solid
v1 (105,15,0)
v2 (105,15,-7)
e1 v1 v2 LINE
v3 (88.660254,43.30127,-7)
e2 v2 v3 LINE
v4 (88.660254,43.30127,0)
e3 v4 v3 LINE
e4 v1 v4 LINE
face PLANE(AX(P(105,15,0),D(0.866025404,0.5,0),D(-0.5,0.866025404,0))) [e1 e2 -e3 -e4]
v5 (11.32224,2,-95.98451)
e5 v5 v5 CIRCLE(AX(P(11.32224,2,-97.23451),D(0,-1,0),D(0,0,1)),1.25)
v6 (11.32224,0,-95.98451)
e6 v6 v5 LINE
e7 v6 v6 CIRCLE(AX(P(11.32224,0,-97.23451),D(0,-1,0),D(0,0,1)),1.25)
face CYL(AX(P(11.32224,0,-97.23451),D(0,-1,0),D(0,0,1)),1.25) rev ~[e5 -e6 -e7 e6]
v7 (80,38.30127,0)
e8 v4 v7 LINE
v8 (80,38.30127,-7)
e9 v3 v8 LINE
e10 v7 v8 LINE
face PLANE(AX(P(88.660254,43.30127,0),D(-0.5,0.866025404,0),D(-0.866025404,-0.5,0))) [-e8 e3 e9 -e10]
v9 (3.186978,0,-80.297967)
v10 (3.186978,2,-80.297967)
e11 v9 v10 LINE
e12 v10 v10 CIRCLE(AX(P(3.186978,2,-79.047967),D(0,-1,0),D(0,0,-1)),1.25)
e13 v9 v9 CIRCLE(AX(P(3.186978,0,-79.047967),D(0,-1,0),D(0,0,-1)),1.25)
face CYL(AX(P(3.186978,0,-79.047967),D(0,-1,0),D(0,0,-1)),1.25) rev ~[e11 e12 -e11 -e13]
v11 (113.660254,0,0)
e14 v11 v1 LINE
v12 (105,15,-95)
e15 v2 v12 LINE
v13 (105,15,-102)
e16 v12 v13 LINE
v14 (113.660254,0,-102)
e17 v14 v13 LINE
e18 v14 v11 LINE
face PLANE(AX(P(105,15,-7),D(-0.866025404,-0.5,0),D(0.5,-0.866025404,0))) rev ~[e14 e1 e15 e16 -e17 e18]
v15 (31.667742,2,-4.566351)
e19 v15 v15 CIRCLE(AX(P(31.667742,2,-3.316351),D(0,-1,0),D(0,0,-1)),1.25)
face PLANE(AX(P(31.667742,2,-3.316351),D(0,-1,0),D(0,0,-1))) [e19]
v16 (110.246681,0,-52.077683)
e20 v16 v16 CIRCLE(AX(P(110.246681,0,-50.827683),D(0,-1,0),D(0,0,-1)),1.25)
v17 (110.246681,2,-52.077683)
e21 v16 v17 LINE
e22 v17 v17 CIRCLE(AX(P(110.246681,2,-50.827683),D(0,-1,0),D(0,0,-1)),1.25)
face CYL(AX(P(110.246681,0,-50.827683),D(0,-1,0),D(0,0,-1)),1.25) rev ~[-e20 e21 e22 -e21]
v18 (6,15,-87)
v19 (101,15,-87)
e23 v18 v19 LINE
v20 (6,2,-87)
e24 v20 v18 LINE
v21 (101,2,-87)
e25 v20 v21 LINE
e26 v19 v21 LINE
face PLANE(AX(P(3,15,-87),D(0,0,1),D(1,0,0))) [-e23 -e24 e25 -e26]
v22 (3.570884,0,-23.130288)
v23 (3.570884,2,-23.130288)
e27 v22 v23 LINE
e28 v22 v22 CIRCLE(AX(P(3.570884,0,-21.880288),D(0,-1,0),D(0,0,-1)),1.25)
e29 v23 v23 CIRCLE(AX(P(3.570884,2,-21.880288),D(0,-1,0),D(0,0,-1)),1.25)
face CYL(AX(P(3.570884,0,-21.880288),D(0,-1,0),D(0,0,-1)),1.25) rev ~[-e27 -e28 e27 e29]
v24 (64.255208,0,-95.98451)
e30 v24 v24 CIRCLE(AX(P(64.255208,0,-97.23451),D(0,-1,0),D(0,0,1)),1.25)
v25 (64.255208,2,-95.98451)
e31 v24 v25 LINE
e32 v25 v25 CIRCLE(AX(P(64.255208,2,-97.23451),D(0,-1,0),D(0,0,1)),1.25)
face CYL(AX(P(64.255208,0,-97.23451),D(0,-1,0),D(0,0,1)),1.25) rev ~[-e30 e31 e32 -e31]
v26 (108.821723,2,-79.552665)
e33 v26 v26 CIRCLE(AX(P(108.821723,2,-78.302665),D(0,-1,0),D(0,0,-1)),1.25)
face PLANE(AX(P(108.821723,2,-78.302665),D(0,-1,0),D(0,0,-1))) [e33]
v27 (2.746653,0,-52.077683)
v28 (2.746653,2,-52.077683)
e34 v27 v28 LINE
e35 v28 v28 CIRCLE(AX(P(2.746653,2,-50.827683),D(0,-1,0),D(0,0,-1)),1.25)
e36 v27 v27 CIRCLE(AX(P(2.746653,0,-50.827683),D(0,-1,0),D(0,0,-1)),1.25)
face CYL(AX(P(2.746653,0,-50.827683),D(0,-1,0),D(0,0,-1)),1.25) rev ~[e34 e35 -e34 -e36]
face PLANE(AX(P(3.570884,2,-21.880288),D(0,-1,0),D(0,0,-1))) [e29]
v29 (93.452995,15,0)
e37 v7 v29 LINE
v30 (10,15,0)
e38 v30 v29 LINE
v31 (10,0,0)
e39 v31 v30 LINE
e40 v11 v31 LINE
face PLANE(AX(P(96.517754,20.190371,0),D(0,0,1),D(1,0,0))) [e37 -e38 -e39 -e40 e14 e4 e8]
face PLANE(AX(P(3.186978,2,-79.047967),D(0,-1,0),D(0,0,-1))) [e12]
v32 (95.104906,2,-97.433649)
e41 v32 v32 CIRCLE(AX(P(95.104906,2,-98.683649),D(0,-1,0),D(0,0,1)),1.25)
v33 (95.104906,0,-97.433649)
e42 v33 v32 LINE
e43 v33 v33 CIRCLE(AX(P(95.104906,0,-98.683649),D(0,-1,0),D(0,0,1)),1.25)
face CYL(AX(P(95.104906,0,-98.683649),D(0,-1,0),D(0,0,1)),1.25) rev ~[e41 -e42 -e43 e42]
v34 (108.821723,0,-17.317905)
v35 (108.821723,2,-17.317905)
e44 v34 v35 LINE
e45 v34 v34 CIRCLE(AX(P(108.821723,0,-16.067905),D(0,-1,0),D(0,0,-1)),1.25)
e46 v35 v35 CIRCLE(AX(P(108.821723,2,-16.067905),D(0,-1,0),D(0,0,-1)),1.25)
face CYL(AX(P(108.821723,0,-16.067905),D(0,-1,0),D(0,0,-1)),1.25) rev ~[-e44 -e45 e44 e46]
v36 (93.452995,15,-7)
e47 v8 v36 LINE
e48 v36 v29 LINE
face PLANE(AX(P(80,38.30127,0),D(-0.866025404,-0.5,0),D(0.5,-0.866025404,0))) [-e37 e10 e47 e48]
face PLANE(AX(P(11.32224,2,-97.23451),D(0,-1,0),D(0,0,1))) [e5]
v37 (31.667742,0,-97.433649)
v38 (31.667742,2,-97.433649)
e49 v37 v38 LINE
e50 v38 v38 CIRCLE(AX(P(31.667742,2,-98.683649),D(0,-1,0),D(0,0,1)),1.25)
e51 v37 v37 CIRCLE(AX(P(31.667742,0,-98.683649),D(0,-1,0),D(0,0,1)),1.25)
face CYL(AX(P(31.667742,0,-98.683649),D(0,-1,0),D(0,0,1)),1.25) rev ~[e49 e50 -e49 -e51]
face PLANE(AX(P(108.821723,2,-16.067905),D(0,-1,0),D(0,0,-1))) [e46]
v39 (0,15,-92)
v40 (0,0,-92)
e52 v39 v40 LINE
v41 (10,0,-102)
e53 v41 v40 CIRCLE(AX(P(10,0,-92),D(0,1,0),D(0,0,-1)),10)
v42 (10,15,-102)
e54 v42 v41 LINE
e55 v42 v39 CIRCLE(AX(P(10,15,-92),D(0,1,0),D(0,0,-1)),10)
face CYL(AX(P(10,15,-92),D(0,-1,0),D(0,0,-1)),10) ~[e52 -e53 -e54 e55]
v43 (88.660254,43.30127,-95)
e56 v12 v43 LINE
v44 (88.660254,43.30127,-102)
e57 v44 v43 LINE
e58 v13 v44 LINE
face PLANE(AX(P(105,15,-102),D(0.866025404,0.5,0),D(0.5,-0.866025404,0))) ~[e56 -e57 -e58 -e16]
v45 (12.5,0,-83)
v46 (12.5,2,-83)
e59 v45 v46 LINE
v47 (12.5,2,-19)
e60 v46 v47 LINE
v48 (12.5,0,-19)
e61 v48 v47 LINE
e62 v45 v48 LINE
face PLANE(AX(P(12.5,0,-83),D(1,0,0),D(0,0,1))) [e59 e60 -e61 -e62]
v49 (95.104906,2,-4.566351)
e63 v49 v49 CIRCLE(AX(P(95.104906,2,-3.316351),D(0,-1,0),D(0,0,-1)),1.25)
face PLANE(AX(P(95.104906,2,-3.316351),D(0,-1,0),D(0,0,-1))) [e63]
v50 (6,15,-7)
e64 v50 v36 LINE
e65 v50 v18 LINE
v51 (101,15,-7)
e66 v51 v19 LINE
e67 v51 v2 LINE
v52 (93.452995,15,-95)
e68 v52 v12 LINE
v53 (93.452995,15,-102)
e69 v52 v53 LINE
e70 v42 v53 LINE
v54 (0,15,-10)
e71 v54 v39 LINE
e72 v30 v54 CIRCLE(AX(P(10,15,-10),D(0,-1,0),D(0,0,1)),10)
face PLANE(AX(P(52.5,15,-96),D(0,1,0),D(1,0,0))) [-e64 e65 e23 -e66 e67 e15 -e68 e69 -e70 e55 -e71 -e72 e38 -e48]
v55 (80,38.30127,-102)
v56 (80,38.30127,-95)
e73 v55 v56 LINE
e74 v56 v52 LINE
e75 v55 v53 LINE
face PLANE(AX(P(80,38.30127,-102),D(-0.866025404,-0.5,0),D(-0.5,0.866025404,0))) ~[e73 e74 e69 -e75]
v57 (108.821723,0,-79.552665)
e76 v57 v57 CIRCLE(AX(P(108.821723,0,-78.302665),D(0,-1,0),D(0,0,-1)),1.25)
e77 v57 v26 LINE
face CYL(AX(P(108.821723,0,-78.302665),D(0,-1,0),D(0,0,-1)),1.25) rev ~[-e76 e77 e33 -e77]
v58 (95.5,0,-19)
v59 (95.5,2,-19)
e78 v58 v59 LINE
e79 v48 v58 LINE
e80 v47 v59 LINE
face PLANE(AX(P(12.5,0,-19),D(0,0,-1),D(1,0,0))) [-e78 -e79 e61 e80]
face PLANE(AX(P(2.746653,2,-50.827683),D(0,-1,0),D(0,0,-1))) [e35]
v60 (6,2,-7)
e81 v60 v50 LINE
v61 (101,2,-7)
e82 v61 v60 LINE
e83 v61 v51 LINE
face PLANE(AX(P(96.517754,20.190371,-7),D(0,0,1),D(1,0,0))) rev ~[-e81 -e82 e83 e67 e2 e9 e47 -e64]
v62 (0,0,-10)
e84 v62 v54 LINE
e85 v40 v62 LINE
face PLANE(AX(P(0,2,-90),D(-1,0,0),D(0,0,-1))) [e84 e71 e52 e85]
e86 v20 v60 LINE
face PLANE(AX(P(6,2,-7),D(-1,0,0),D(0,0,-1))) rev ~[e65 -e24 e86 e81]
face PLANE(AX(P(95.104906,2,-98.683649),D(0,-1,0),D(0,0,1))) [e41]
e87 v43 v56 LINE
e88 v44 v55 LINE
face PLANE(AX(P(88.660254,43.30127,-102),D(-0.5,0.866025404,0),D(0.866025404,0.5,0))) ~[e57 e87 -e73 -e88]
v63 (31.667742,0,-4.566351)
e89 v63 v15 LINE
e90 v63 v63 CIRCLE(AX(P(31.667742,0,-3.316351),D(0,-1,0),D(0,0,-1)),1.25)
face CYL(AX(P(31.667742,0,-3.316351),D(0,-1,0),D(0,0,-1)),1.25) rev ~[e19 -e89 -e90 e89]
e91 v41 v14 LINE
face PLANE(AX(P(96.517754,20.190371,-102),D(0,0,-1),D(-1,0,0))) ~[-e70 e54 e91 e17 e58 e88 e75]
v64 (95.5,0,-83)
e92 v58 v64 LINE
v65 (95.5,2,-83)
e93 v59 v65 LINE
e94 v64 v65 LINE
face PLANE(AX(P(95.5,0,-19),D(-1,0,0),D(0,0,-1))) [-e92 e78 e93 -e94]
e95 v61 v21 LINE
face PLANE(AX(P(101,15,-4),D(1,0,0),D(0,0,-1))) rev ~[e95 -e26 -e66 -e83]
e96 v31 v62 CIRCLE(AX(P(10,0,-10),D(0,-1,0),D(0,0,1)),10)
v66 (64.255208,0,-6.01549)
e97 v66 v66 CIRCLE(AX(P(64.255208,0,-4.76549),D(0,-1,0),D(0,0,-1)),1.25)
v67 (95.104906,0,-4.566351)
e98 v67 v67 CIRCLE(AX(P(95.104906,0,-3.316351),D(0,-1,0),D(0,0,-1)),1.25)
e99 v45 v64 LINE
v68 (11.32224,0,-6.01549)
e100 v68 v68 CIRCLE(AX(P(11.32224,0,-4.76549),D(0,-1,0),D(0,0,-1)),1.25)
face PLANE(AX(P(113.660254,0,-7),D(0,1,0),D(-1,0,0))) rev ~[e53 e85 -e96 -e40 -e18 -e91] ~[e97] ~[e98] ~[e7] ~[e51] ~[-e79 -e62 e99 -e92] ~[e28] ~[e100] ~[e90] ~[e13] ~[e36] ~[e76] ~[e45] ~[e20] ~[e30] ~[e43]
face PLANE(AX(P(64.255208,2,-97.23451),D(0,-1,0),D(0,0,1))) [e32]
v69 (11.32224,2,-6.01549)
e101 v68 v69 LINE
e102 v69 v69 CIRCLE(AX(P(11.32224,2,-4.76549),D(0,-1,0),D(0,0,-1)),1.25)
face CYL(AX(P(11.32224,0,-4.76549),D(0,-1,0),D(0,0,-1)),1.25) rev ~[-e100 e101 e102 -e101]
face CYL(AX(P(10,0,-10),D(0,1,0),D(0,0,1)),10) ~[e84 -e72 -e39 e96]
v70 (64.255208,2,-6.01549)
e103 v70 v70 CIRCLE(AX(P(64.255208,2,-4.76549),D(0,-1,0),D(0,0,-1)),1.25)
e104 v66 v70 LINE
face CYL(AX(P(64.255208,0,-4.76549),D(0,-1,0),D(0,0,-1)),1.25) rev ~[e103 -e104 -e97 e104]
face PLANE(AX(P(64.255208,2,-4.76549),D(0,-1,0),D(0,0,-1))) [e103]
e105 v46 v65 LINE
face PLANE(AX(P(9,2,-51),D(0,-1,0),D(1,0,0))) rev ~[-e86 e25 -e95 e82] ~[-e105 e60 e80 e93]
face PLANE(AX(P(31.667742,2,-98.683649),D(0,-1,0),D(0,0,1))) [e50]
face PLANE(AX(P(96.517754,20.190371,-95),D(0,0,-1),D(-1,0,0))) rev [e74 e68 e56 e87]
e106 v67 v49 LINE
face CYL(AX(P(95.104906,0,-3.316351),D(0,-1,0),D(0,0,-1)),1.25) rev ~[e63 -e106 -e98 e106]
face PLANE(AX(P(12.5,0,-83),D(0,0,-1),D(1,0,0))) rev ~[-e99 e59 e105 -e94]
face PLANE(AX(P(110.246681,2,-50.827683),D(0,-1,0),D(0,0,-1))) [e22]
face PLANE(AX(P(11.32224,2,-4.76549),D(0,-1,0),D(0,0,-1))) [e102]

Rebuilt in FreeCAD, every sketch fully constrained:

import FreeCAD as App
import Part
import Sketcher

V = App.Vector
Q = App.Units.Quantity


def edges_at(feature, points):
    """Names of the edges that pass closest to the given points."""
    edges = feature.Shape.Edges
    near = lambda p: min(range(len(edges)), key=lambda i: edges[i].distToShape(Part.Vertex(*p))[0])
    return sorted({f"Edge{near(p) + 1}" for p in points})


def add_polygon(sketch, points):
    """Adds a closed chain of lines whose ends are joined by coincident constraints."""
    first, n = sketch.GeometryCount, len(points)
    for a, b in zip(points, points[1:] + points[:1]):
        sketch.addGeometry(Part.LineSegment(App.Vector(*a, 0), App.Vector(*b, 0)), False)
    for i in range(n):
        sketch.addConstraint(Sketcher.Constraint("Coincident", first + i, 2, first + (i + 1) % n, 1))

doc = App.newDocument("Part")
body = doc.addObject("PartDesign::Body", "Body")

sketch1 = body.newObject("Sketcher::SketchObject", "Sketch")
sketch1.AttachmentSupport = (doc.getObject("XZ_Plane"), [""])
sketch1.MapMode = "FlatFace"
add_polygon(sketch1, [(0, -90), (0, 0), (105, 0), (105, -90)])
sketch1.addConstraint([
    Sketcher.Constraint("Vertical", 0),
    Sketcher.Constraint("Horizontal", 1),
    Sketcher.Constraint("Vertical", 2),
    Sketcher.Constraint("Horizontal", 3),
    Sketcher.Constraint("Coincident", 0, 2, -1, 1),
    Sketcher.Constraint("DistanceX", 1, 1, 1, 2, 105.0),
    Sketcher.Constraint("DistanceY", 0, 1, 0, 2, 90.0),
])
pad1 = body.newObject("PartDesign::Pad", "Pad")
pad1.Profile = sketch1
pad1.Length = 15
pad1.Reversed = True

sketch2 = body.newObject("Sketcher::SketchObject", "Sketch001")
sketch2.AttachmentSupport = (doc.getObject("XZ_Plane"), [""])
sketch2.MapMode = "FlatFace"
sketch2.AttachmentOffset = App.Placement(V(0, 0, -15), App.Rotation())
add_polygon(sketch2, [(3, -87), (3, -4), (101, -4), (101, -87)])
sketch2.addConstraint([
    Sketcher.Constraint("Vertical", 0),
    Sketcher.Constraint("Horizontal", 1),
    Sketcher.Constraint("Vertical", 2),
    Sketcher.Constraint("Horizontal", 3),
    Sketcher.Constraint("DistanceX", 1, 1, 1, 2, 98.0),
    Sketcher.Constraint("DistanceY", 0, 1, 0, 2, 83.0),
    Sketcher.Constraint("DistanceX", -1, 1, 0, 2, 3.0),
    Sketcher.Constraint("DistanceY", 0, 2, -1, 1, 4.0),
])
pocket1 = body.newObject("PartDesign::Pocket", "Pocket")
pocket1.Profile = sketch2
pocket1.Length = 13
pocket1.Reversed = True

sketch3 = body.newObject("Sketcher::SketchObject", "Sketch002")
sketch3.AttachmentSupport = (doc.getObject("XZ_Plane"), [""])
sketch3.MapMode = "FlatFace"
sketch3.AttachmentOffset = App.Placement(V(0, 0, -2), App.Rotation())
add_polygon(sketch3, [(6, -84), (6, -18), (98, -18), (98, -84)])
sketch3.addConstraint([
    Sketcher.Constraint("Vertical", 0),
    Sketcher.Constraint("Horizontal", 1),
    Sketcher.Constraint("Vertical", 2),
    Sketcher.Constraint("Horizontal", 3),
    Sketcher.Constraint("DistanceX", 1, 1, 1, 2, 93.0),
    Sketcher.Constraint("DistanceY", 0, 1, 0, 2, 66.0),
    Sketcher.Constraint("DistanceY", 0, 2, -1, 1, 18.0),
    Sketcher.Constraint("DistanceX", -1, 1, 0, 2, 5.5),
])
pocket2 = body.newObject("PartDesign::Pocket", "Pocket001")
pocket2.Profile = sketch3
pocket2.Length = 13
pocket2.Reversed = True

sketch4 = body.newObject("Sketcher::SketchObject", "Sketch003")
sketch4.AttachmentSupport = (doc.getObject("XZ_Plane"), [""])
sketch4.MapMode = "FlatFace"
add_polygon(sketch4, [(6, -18), (6, -84), (98, -84), (98, -18)])
add_polygon(sketch4, [(96, -19), (96, -83), (12, -83), (12, -19)])
sketch4.addConstraint([
    Sketcher.Constraint("Vertical", 0),
    Sketcher.Constraint("Horizontal", 1),
    Sketcher.Constraint("Vertical", 2),
    Sketcher.Constraint("Horizontal", 3),
    Sketcher.Constraint("Vertical", 4),
    Sketcher.Constraint("Horizontal", 5),
    Sketcher.Constraint("Vertical", 6),
    Sketcher.Constraint("Horizontal", 7),
    Sketcher.Constraint("DistanceX", 1, 1, 1, 2, 93.0),
    Sketcher.Constraint("DistanceX", 5, 2, 5, 1, 83.0),
    Sketcher.Constraint("DistanceY", 0, 2, 0, 1, 66.0),
    Sketcher.Constraint("DistanceY", 4, 2, 4, 1, 64.0),
    Sketcher.Constraint("DistanceY", 0, 2, -1, 1, 84.0),
    Sketcher.Constraint("DistanceY", 4, 2, -1, 1, 83.0),
    Sketcher.Constraint("DistanceX", 4, 2, 1, 2, 3.0),
    Sketcher.Constraint("DistanceX", -1, 1, 0, 2, 5.5),
])
pad2 = body.newObject("PartDesign::Pad", "Pad001")
pad2.Profile = sketch4
pad2.Length = 2
pad2.Reversed = True

sketch5 = body.newObject("Sketcher::SketchObject", "Sketch004")
sketch5.AttachmentSupport = (doc.getObject("XZ_Plane"), [""])
sketch5.MapMode = "FlatFace"
sketch5.AttachmentOffset = App.Placement(V(0, 0, -2), App.Rotation())
add_polygon(sketch5, [(3, -87), (3, -4), (101, -4), (101, -7), (6, -7), (6, -87)])
sketch5.addConstraint([
    Sketcher.Constraint("Vertical", 0),
    Sketcher.Constraint("Horizontal", 1),
    Sketcher.Constraint("Vertical", 2),
    Sketcher.Constraint("Horizontal", 3),
    Sketcher.Constraint("Vertical", 4),
    Sketcher.Constraint("Horizontal", 5),
    Sketcher.Constraint("Equal", 5, 2),
    Sketcher.Constraint("DistanceX", 1, 1, 1, 2, 98.0),
    Sketcher.Constraint("DistanceX", 3, 2, 3, 1, 95.0),
    Sketcher.Constraint("DistanceY", 0, 1, 0, 2, 83.0),
    Sketcher.Constraint("DistanceX", -1, 1, 0, 2, 3.0),
    Sketcher.Constraint("DistanceY", 0, 2, -1, 1, 4.0),
])
pad3 = body.newObject("PartDesign::Pad", "Pad002")
pad3.Profile = sketch5
pad3.Length = 13
pad3.Reversed = True

sketch6 = body.newObject("Sketcher::SketchObject", "Sketch005")
sketch6.AttachmentSupport = (doc.getObject("XZ_Plane"), [""])
sketch6.MapMode = "FlatFace"
add_polygon(sketch6, [(0, -83), (0, -102), (105, -102), (105, -83)])
sketch6.addConstraint([
    Sketcher.Constraint("Vertical", 0),
    Sketcher.Constraint("Horizontal", 1),
    Sketcher.Constraint("Vertical", 2),
    Sketcher.Constraint("Horizontal", 3),
    Sketcher.Constraint("PointOnObject", 0, 2, -2),
    Sketcher.Constraint("DistanceX", 1, 1, 1, 2, 105.0),
    Sketcher.Constraint("DistanceY", 0, 2, 0, 1, 19.0),
    Sketcher.Constraint("DistanceY", 0, 2, -1, 1, 102.0),
])
pad4 = body.newObject("PartDesign::Pad", "Pad003")
pad4.Profile = sketch6
pad4.Length = 2
pad4.Reversed = True

sketch7 = body.newObject("Sketcher::SketchObject", "Sketch006")
sketch7.AttachmentSupport = (doc.getObject("XZ_Plane"), [""])
sketch7.MapMode = "FlatFace"
sketch7.AttachmentOffset = App.Placement(V(0, 0, -2), App.Rotation())
add_polygon(sketch7, [(0, -102), (0, -90), (105, -90), (105, -102)])
sketch7.addConstraint([
    Sketcher.Constraint("Vertical", 0),
    Sketcher.Constraint("Horizontal", 1),
    Sketcher.Constraint("Vertical", 2),
    Sketcher.Constraint("Horizontal", 3),
    Sketcher.Constraint("PointOnObject", 0, 2, -2),
    Sketcher.Constraint("DistanceX", 1, 1, 1, 2, 105.0),
    Sketcher.Constraint("DistanceY", 0, 1, 0, 2, 12.0),
    Sketcher.Constraint("DistanceY", 0, 2, -1, 1, 90.0),
])
pad5 = body.newObject("PartDesign::Pad", "Pad004")
pad5.Profile = sketch7
pad5.Length = 13
pad5.Reversed = True

sketch8 = body.newObject("Sketcher::SketchObject", "Sketch007")
sketch8.AttachmentSupport = (doc.getObject("XY_Plane"), [""])
sketch8.MapMode = "FlatFace"
add_polygon(sketch8, [(114, 0), (105, 15), (89, 43), (80, 38), (102, 0)])
sketch8.addConstraint([
    Sketcher.Constraint("Horizontal", 4),
    Sketcher.Constraint("PointOnObject", 3, 2, -1),
    Sketcher.Constraint("Parallel", 0, 1),
    Sketcher.Constraint("Perpendicular", 1, 2),
    Sketcher.Constraint("Perpendicular", 2, 3),
    Sketcher.Constraint("Angle", 0, Q("120 deg")),
    Sketcher.Constraint("Distance", 2, 10.0),
    Sketcher.Constraint("DistanceX", -1, 1, 0, 2, 105.0),
    Sketcher.Constraint("DistanceY", -1, 1, 0, 2, 15.0),
    Sketcher.Constraint("DistanceX", -1, 1, 2, 2, 80.0),
])
pad6 = body.newObject("PartDesign::Pad", "Pad005")
pad6.Profile = sketch8
pad6.Length = 7
pad6.Reversed = True
doc.recompute()

datumplane = body.newObject("PartDesign::Plane", "DatumPlane")
datumplane.AttachmentSupport = (doc.getObject("XY_Plane"), [""])
datumplane.MapMode = "FlatFace"
datumplane.AttachmentOffset = App.Placement(V(0, 0, -51), App.Rotation())
mirrored = body.newObject("PartDesign::Mirrored", "Mirrored")
mirrored.Originals = [pad6]
mirrored.MirrorPlane = (datumplane, [""])
body.Tip = mirrored

sketch9 = body.newObject("Sketcher::SketchObject", "Sketch008")
sketch9.AttachmentSupport = (doc.getObject("XY_Plane"), [""])
sketch9.MapMode = "FlatFace"
sketch9.AttachmentOffset = App.Placement(V(0, 0, -7), App.Rotation())
add_polygon(sketch9, [(114, 0), (105, 0), (105, 15)])
sketch9.addConstraint([
    Sketcher.Constraint("Horizontal", 0),
    Sketcher.Constraint("Vertical", 1),
    Sketcher.Constraint("PointOnObject", 0, 2, -1),
    Sketcher.Constraint("DistanceY", 1, 1, 1, 2, 15.0),
    Sketcher.Constraint("Angle", 2, Q("-60 deg")),
    Sketcher.Constraint("DistanceX", -1, 1, 0, 2, 105.0),
])
pad7 = body.newObject("PartDesign::Pad", "Pad006")
pad7.Profile = sketch9
pad7.Length = 88
pad7.Reversed = True

sketch10 = body.newObject("Sketcher::SketchObject", "Sketch009")
sketch10.AttachmentSupport = (doc.getObject("XZ_Plane"), [""])
sketch10.MapMode = "FlatFace"
sketch10.addGeometry([
    Part.Circle(V(11.3, -4.8, 0), V(0, 0, 1), 1.2),
    Part.Circle(V(31.7, -3.3, 0), V(0, 0, 1), 1.2),
    Part.Circle(V(64.3, -4.8, 0), V(0, 0, 1), 1.2),
    Part.Circle(V(95.1, -3.3, 0), V(0, 0, 1), 1.2),
    Part.Circle(V(95.1, -98.7, 0), V(0, 0, 1), 1.2),
    Part.Circle(V(64.3, -97.2, 0), V(0, 0, 1), 1.2),
    Part.Circle(V(31.7, -98.7, 0), V(0, 0, 1), 1.2),
    Part.Circle(V(11.3, -97.2, 0), V(0, 0, 1), 1.2),
    Part.Circle(V(108.8, -16.1, 0), V(0, 0, 1), 1.2),
    Part.Circle(V(108.8, -78.3, 0), V(0, 0, 1), 1.2),
    Part.Circle(V(110.2, -50.8, 0), V(0, 0, 1), 1.2),
    Part.Circle(V(2.7, -50.8, 0), V(0, 0, 1), 1.2),
    Part.Circle(V(3.6, -21.9, 0), V(0, 0, 1), 1.2),
    Part.Circle(V(3.2, -79, 0), V(0, 0, 1), 1.2),
], False)
sketch10.addConstraint([
    Sketcher.Constraint("Equal", 0, 1),
    Sketcher.Constraint("Equal", 1, 2),
    Sketcher.Constraint("Equal", 2, 3),
    Sketcher.Constraint("Equal", 3, 4),
    Sketcher.Constraint("Equal", 4, 5),
    Sketcher.Constraint("Equal", 5, 6),
    Sketcher.Constraint("Equal", 6, 7),
    Sketcher.Constraint("Equal", 7, 8),
    Sketcher.Constraint("Equal", 8, 9),
    Sketcher.Constraint("Equal", 9, 10),
    Sketcher.Constraint("Equal", 10, 11),
    Sketcher.Constraint("Equal", 11, 12),
    Sketcher.Constraint("Equal", 12, 13),
    Sketcher.Constraint("Horizontal", 0, 3, 2, 3),
    Sketcher.Constraint("Horizontal", 1, 3, 3, 3),
    Sketcher.Constraint("Horizontal", 4, 3, 6, 3),
    Sketcher.Constraint("Horizontal", 5, 3, 7, 3),
    Sketcher.Constraint("Horizontal", 10, 3, 11, 3),
    Sketcher.Constraint("Vertical", 3, 3, 4, 3),
    Sketcher.Constraint("Vertical", 2, 3, 5, 3),
    Sketcher.Constraint("Vertical", 1, 3, 6, 3),
    Sketcher.Constraint("Vertical", 0, 3, 7, 3),
    Sketcher.Constraint("Vertical", 8, 3, 9, 3),
    Sketcher.Constraint("Diameter", 0, 2.5),
    Sketcher.Constraint("DistanceY", 12, 3, 0, 3, 17.114798),
    Sketcher.Constraint("DistanceX", -1, 1, 0, 3, 11.32224),
    Sketcher.Constraint("DistanceY", 0, 3, -1, 1, 4.76549),
    Sketcher.Constraint("DistanceY", 1, 3, -1, 1, 3.316351),
    Sketcher.Constraint("DistanceX", -1, 1, 2, 3, 64.255208),
    Sketcher.Constraint("DistanceY", 4, 3, -1, 1, 98.683649),
    Sketcher.Constraint("DistanceY", 5, 3, -1, 1, 97.23451),
    Sketcher.Constraint("DistanceX", -1, 1, 10, 3, 110.246681),
    Sketcher.Constraint("DistanceX", 1, 3, 8, 3, 77.15398),
    Sketcher.Constraint("DistanceY", 9, 3, 8, 3, 62.23476),
    Sketcher.Constraint("DistanceY", 10, 3, 8, 3, 34.759778),
    Sketcher.Constraint("DistanceY", 10, 3, 3, 3, 47.511332),
    Sketcher.Constraint("DistanceX", 11, 3, 1, 3, 28.921089),
    Sketcher.Constraint("DistanceX", 11, 3, 12, 3, 0.824231),
    Sketcher.Constraint("DistanceY", 13, 3, 12, 3, 57.167678),
    Sketcher.Constraint("DistanceX", 13, 3, 5, 3, 61.068231),
    Sketcher.Constraint("DistanceX", -1, 1, 1, 3, 31.667742),
    Sketcher.Constraint("DistanceX", -1, 1, 3, 3, 95.104906),
])
pocket3 = body.newObject("PartDesign::Pocket", "Pocket002")
pocket3.Profile = sketch10
pocket3.Length = 2
doc.recompute()

fillet = body.newObject("PartDesign::Fillet", "Fillet")
fillet.Base = (pocket3, edges_at(pocket3, [(0, 7.5, -102), (0, 7.5, 0)]))
fillet.Radius = 10

doc.recompute()
